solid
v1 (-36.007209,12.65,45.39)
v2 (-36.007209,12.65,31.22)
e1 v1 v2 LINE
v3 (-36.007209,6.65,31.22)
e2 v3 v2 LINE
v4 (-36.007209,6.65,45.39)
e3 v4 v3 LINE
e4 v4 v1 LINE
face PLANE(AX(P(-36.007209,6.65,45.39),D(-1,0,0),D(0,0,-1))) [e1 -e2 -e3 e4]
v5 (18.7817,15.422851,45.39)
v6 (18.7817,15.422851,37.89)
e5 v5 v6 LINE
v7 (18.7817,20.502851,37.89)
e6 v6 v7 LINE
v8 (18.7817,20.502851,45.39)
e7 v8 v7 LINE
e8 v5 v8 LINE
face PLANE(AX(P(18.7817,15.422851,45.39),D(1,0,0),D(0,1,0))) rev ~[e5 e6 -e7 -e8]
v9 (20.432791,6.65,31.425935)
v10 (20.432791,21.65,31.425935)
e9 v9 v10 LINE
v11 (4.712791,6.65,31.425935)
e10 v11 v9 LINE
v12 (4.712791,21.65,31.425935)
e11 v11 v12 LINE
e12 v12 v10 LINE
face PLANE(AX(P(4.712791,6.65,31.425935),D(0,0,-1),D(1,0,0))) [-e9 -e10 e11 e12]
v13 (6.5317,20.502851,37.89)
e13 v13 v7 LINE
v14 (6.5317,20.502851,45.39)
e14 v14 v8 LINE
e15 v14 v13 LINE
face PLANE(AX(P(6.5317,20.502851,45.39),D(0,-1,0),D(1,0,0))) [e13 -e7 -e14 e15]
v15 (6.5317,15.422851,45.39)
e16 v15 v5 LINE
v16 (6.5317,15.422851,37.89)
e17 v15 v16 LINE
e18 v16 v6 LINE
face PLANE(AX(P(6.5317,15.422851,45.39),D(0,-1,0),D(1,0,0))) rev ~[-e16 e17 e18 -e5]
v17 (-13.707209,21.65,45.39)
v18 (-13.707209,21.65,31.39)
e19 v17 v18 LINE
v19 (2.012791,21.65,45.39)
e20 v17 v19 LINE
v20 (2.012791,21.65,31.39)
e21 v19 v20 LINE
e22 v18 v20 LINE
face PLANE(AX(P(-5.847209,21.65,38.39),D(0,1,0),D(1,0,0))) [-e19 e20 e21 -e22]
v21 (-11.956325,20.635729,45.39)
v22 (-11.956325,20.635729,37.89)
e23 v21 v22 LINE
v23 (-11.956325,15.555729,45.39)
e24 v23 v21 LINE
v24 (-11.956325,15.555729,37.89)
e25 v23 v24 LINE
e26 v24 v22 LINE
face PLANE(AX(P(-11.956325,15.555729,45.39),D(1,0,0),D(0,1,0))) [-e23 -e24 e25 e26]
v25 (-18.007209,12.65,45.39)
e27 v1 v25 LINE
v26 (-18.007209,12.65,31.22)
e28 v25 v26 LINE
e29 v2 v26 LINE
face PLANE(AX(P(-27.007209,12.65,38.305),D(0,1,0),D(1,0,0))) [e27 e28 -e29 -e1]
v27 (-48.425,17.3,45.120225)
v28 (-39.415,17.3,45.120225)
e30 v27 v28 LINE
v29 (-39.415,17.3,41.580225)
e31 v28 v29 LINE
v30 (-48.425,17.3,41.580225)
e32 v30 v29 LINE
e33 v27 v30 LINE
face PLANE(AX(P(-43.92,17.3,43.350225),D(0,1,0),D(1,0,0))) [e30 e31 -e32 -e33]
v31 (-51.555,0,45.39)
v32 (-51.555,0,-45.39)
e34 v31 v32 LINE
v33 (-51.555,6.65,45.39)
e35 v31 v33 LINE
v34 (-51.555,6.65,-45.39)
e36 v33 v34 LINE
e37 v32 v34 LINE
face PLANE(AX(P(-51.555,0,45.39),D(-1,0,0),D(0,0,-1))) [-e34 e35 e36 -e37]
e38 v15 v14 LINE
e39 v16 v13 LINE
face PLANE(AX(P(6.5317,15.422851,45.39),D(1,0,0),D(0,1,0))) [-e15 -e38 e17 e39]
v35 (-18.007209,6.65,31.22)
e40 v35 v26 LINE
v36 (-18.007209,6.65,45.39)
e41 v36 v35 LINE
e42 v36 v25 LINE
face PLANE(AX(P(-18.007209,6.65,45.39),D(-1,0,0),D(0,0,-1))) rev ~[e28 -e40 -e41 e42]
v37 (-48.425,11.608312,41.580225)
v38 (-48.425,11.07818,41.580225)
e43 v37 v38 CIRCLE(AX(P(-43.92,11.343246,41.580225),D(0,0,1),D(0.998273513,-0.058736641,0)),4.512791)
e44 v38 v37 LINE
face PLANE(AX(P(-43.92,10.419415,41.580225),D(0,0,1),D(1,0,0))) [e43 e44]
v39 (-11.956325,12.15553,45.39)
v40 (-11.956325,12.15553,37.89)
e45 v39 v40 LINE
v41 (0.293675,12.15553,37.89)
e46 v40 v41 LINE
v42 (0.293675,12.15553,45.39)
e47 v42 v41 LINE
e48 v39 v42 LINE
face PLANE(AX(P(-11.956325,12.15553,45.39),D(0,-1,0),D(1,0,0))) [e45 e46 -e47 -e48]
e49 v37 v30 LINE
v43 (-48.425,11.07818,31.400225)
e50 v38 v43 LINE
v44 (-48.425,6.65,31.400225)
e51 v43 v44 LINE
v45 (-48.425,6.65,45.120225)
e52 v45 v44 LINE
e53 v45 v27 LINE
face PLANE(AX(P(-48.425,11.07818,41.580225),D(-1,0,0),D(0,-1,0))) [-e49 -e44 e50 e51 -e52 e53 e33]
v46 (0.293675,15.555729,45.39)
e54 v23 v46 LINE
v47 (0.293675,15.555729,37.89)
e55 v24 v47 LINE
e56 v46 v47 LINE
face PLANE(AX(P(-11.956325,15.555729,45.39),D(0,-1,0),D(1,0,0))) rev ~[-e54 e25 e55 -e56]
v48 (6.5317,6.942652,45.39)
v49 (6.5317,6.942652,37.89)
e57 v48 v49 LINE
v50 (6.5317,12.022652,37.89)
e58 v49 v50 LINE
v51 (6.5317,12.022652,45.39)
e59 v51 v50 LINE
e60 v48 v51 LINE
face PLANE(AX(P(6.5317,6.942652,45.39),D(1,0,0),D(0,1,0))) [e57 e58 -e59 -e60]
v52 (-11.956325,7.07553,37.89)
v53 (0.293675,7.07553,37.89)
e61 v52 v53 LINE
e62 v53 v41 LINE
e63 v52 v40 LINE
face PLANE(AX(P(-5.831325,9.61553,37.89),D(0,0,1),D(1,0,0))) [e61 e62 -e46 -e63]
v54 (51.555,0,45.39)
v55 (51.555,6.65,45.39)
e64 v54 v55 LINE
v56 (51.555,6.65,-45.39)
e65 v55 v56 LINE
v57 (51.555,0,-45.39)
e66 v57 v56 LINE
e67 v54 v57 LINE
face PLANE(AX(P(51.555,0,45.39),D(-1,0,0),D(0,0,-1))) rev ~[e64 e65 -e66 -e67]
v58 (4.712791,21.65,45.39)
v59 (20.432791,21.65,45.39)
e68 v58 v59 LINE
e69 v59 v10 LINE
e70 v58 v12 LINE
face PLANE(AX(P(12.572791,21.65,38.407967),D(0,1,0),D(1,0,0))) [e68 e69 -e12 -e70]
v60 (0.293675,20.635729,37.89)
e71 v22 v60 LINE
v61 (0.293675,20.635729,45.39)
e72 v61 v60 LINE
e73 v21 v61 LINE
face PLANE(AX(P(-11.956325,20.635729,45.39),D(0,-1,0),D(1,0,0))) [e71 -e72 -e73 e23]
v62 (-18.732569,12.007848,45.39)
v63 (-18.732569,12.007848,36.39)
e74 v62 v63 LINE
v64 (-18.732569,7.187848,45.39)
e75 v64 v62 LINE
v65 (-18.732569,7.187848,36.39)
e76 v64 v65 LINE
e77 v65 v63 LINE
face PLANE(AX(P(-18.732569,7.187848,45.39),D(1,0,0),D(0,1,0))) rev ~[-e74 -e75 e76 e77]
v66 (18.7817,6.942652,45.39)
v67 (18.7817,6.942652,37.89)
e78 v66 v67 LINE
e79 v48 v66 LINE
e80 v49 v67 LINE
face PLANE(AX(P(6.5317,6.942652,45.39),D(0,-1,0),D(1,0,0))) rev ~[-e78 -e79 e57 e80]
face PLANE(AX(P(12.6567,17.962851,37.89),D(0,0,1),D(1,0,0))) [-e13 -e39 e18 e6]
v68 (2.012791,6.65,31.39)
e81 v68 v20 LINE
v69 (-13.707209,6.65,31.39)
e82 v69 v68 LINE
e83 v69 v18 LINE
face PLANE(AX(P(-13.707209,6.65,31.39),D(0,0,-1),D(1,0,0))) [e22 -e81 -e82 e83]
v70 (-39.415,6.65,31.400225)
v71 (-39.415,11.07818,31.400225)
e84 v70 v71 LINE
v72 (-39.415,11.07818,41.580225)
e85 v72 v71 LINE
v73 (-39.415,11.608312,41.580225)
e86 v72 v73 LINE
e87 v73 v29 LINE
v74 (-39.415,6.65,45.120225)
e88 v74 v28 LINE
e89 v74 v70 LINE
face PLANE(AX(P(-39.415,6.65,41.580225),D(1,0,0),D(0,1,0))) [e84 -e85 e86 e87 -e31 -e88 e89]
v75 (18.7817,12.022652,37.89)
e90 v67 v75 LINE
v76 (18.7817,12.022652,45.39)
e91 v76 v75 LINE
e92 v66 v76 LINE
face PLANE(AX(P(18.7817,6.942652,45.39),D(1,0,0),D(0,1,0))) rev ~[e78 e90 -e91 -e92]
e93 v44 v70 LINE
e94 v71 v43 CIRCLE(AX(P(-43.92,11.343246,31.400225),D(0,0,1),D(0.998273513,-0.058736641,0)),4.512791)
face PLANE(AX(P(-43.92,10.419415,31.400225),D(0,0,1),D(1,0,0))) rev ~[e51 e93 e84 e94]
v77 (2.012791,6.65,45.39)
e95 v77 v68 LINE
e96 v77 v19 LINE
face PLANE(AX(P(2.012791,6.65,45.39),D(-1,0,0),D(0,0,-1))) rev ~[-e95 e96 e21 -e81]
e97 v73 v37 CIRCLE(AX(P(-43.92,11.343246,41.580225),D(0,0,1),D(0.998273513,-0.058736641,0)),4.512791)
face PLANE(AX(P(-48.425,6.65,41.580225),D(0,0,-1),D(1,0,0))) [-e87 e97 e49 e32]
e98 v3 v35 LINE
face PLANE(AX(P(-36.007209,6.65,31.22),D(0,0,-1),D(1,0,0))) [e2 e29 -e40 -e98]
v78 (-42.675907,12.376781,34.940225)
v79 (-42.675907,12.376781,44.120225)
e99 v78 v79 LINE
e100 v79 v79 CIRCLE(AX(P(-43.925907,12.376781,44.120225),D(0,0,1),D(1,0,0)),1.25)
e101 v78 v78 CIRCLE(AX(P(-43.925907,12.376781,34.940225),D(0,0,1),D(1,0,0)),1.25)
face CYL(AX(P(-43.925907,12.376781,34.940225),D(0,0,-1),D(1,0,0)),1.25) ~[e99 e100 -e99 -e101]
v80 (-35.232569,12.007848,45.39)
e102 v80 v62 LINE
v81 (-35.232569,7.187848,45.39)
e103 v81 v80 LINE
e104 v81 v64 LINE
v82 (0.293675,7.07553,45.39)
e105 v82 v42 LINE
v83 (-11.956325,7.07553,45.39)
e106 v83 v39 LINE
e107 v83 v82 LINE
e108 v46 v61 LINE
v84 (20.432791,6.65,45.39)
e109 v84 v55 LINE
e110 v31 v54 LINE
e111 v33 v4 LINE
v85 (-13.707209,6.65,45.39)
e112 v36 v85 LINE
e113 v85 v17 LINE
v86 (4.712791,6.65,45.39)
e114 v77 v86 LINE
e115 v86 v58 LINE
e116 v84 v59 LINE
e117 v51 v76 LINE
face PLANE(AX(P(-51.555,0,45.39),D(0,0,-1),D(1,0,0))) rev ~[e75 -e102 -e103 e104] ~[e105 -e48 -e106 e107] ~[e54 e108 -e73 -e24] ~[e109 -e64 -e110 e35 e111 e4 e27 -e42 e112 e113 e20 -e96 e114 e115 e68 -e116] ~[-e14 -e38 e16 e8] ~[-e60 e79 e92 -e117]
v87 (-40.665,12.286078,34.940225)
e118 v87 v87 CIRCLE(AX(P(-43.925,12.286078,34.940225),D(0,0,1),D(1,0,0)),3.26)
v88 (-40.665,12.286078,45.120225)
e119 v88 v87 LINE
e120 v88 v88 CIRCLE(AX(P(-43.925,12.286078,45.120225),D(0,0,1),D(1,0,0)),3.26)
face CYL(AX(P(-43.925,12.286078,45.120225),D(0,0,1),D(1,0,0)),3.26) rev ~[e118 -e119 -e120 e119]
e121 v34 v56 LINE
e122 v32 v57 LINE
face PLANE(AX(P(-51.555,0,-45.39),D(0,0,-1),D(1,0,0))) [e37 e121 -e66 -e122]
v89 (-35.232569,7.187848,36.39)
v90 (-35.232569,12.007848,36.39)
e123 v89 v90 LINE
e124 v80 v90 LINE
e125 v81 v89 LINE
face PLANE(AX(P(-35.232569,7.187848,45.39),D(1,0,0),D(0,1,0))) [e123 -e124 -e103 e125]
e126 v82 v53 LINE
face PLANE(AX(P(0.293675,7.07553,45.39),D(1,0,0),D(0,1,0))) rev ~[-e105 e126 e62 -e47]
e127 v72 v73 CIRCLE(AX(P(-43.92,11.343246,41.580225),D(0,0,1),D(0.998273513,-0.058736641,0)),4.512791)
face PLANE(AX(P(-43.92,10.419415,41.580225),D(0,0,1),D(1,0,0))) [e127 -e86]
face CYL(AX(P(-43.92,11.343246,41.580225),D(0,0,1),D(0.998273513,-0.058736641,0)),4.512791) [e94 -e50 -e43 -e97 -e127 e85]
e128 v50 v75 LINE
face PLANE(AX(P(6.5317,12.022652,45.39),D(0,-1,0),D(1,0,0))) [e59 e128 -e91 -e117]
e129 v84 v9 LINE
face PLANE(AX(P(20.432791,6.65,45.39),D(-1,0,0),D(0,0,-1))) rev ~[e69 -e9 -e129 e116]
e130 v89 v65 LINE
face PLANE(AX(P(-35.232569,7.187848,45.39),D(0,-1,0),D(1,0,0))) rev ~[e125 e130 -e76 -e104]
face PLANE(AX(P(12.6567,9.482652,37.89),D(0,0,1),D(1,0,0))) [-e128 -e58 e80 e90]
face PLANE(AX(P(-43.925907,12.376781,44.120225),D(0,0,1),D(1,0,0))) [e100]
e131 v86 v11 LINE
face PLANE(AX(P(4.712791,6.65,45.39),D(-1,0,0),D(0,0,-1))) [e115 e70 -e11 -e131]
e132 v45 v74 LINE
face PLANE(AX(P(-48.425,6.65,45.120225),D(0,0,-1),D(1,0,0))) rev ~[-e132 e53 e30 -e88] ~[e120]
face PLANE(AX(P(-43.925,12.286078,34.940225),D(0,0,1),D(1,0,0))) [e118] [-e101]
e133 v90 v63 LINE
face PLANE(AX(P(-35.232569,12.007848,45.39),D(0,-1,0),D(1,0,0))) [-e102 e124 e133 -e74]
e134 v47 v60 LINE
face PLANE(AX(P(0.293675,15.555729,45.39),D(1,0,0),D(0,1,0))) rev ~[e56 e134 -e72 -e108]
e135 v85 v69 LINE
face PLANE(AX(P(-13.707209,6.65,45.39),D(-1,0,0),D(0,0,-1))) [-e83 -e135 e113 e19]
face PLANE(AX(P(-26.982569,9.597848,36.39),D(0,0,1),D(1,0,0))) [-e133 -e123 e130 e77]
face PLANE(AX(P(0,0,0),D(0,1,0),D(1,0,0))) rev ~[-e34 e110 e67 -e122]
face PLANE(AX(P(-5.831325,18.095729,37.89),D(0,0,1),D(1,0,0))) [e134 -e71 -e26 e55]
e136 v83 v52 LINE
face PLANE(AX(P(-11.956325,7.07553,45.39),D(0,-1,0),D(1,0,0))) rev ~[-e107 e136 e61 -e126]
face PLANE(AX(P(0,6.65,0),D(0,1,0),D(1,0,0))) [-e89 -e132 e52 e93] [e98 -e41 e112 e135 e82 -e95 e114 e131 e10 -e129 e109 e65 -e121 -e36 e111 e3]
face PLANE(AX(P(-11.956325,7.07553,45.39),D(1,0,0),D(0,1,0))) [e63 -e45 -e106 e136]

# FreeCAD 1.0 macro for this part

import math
import FreeCAD as App
import Part
import Sketcher
from FreeCAD import Vector
Q = App.Units.Quantity


def add_polygon(sketch, points):
    """Adds a closed chain of lines whose ends are joined by coincident constraints."""
    first, n = sketch.GeometryCount, len(points)
    for a, b in zip(points, points[1:] + points[:1]):
        sketch.addGeometry(Part.LineSegment(App.Vector(*a, 0), App.Vector(*b, 0)), False)
    for i in range(n):
        sketch.addConstraint(Sketcher.Constraint("Coincident", first + i, 2, first + (i + 1) % n, 1))

doc = App.newDocument("Part")
body = doc.addObject("PartDesign::Body", "Body")

# Sketch on XZ plane
sketch1 = doc.addObject("Sketcher::SketchObject", "Sketch")
body.addObject(sketch1)
sketch1.AttachmentSupport = (doc.XZ_Plane, [""])
sketch1.MapMode = "FlatFace"
add_polygon(sketch1, [(-52, -45), (-52, 45), (52, 45), (52, -45)])  # lines 0-3
sketch1.addConstraint([
    Sketcher.Constraint("Vertical", 0),
    Sketcher.Constraint("Horizontal", 1),
    Sketcher.Constraint("Vertical", 2),
    Sketcher.Constraint("Horizontal", 3),
    Sketcher.Constraint("Symmetric", 0, 2, 2, 2, -1, 1),
    Sketcher.Constraint("DistanceX", 1, 1, 1, 2, Q("103.11 mm")),
    Sketcher.Constraint("DistanceY", 0, 1, 0, 2, Q("90.78 mm")),
])
pad1 = doc.addObject("PartDesign::Pad", "Pad")
body.addObject(pad1)
pad1.Profile = sketch1
pad1.Length = 6.65
pad1.Reversed = True

# Sketch on XZ plane
sketch2 = doc.addObject("Sketcher::SketchObject", "Sketch001")
body.addObject(sketch2)
sketch2.AttachmentSupport = (doc.XZ_Plane, [""])
sketch2.MapMode = "FlatFace"
sketch2.AttachmentOffset = App.Placement(Vector(0, 0, -6.65), App.Rotation())
add_polygon(sketch2, [(-48.4, 41.6), (-48.4, 45.1), (-39.4, 45.1), (-39.4, 41.6)])  # lines 0-3
sketch2.addConstraint([
    Sketcher.Constraint("Vertical", 0),
    Sketcher.Constraint("Horizontal", 1),
    Sketcher.Constraint("Vertical", 2),
    Sketcher.Constraint("Horizontal", 3),
    Sketcher.Constraint("DistanceX", 1, 1, 1, 2, Q("9.01 mm")),
    Sketcher.Constraint("DistanceY", 0, 1, 0, 2, Q("3.54 mm")),
    Sketcher.Constraint("DistanceX", 0, 2, -1, 1, Q("48.425 mm")),
    Sketcher.Constraint("DistanceY", -1, 1, 0, 2, Q("45.120225 mm")),
])
pad2 = doc.addObject("PartDesign::Pad", "Pad001")
body.addObject(pad2)
pad2.Profile = sketch2
pad2.Length = 10.65
pad2.Reversed = True

# Sketch on XY plane
sketch3 = doc.addObject("Sketcher::SketchObject", "Sketch002")
body.addObject(sketch3)
sketch3.AttachmentSupport = (doc.XY_Plane, [""])
sketch3.MapMode = "FlatFace"
sketch3.AttachmentOffset = App.Placement(Vector(0, 0, 41.580225), App.Rotation())
sketch3.addGeometry([
    Part.LineSegment(Vector(-39.4, 11.1, 0), Vector(-39.4, 6.7, 0)),
    Part.LineSegment(Vector(-39.4, 6.7, 0), Vector(-48.4, 6.7, 0)),
    Part.LineSegment(Vector(-48.4, 6.7, 0), Vector(-48.4, 11.1, 0)),
    Part.ArcOfCircle(Part.Circle(Vector(-43.9, 11.3, 0), Vector(0, 0, 1), 4.5), math.radians(-3), math.radians(183)),
], False)
sketch3.addConstraint([
    Sketcher.Constraint("Coincident", 0, 2, 1, 1),
    Sketcher.Constraint("Coincident", 1, 2, 2, 1),
    Sketcher.Constraint("Coincident", 2, 2, 3, 2),
    Sketcher.Constraint("Coincident", 3, 1, 0, 1),
    Sketcher.Constraint("Vertical", 0),
    Sketcher.Constraint("Horizontal", 1),
    Sketcher.Constraint("Vertical", 2),
    Sketcher.Constraint("Horizontal", 2, 2, 3, 1),
    Sketcher.Constraint("DistanceX", 1, 2, 1, 1, Q("9.01 mm")),
    Sketcher.Constraint("DistanceX", 3, 3, -1, 1, Q("43.92 mm")),
    Sketcher.Constraint("DistanceY", -1, 1, 0, 2, Q("6.65 mm")),
    Sketcher.Constraint("Radius", 3, Q("4.512791 mm")),
    Sketcher.Constraint("DistanceY", 0, 2, 0, 1, Q("4.42818 mm")),
])
pad3 = doc.addObject("PartDesign::Pad", "Pad002")
body.addObject(pad3)
pad3.Profile = sketch3
pad3.Length = 10.18
pad3.Reversed = True

# Sketch on XY plane
sketch4 = doc.addObject("Sketcher::SketchObject", "Sketch003")
body.addObject(sketch4)
sketch4.AttachmentSupport = (doc.XY_Plane, [""])
sketch4.MapMode = "FlatFace"
sketch4.AttachmentOffset = App.Placement(Vector(0, 0, 45.120225), App.Rotation())
sketch4.addGeometry(Part.Circle(Vector(-43.9, 12.3, 0), Vector(0, 0, 1), 3.3), False)
sketch4.addConstraint([
    Sketcher.Constraint("Diameter", 0, Q("6.52 mm")),
    Sketcher.Constraint("DistanceX", 0, 3, -1, 1, Q("43.925 mm")),
    Sketcher.Constraint("DistanceY", -1, 1, 0, 3, Q("12.286078 mm")),
])
pocket1 = doc.addObject("PartDesign::Pocket", "Pocket")
body.addObject(pocket1)
pocket1.Profile = sketch4
pocket1.Length = 10.18

# Sketch on XY plane
sketch5 = doc.addObject("Sketcher::SketchObject", "Sketch004")
body.addObject(sketch5)
sketch5.AttachmentSupport = (doc.XY_Plane, [""])
sketch5.MapMode = "FlatFace"
sketch5.AttachmentOffset = App.Placement(Vector(0, 0, 34.940225), App.Rotation())
sketch5.addGeometry(Part.Circle(Vector(-43.9, 12.4, 0), Vector(0, 0, 1), 1.2), False)
sketch5.addConstraint([
    Sketcher.Constraint("Diameter", 0, Q("2.5 mm")),
    Sketcher.Constraint("DistanceY", -1, 1, 0, 3, Q("12.376781 mm")),
    Sketcher.Constraint("DistanceX", 0, 3, -1, 1, Q("43.925907 mm")),
])
pad4 = doc.addObject("PartDesign::Pad", "Pad003")
body.addObject(pad4)
pad4.Profile = sketch5
pad4.Length = 9.18

# Sketch on XZ plane
sketch6 = doc.addObject("Sketcher::SketchObject", "Sketch005")
body.addObject(sketch6)
sketch6.AttachmentSupport = (doc.XZ_Plane, [""])
sketch6.MapMode = "FlatFace"
sketch6.AttachmentOffset = App.Placement(Vector(0, 0, -6.65), App.Rotation())
add_polygon(sketch6, [(-36, 31), (-36, 45), (-18, 45), (-18, 31)])  # lines 0-3
sketch6.addConstraint([
    Sketcher.Constraint("Vertical", 0),
    Sketcher.Constraint("Horizontal", 1),
    Sketcher.Constraint("Vertical", 2),
    Sketcher.Constraint("Horizontal", 3),
    Sketcher.Constraint("DistanceX", 1, 1, 1, 2, Q("18 mm")),
    Sketcher.Constraint("DistanceY", 0, 1, 0, 2, Q("14.17 mm")),
    Sketcher.Constraint("DistanceY", -1, 1, 0, 2, Q("45.39 mm")),
    Sketcher.Constraint("DistanceX", 0, 2, -1, 1, Q("36.007209 mm")),
])
pad5 = doc.addObject("PartDesign::Pad", "Pad004")
body.addObject(pad5)
pad5.Profile = sketch6
pad5.Length = 6
pad5.Reversed = True

# Sketch on XY plane
sketch7 = doc.addObject("Sketcher::SketchObject", "Sketch006")
body.addObject(sketch7)
sketch7.AttachmentSupport = (doc.XY_Plane, [""])
sketch7.MapMode = "FlatFace"
sketch7.AttachmentOffset = App.Placement(Vector(0, 0, 45.39), App.Rotation())
add_polygon(sketch7, [(-35.2, 12), (-35.2, 7.2), (-18.7, 7.2), (-18.7, 12)])  # lines 0-3
sketch7.addConstraint([
    Sketcher.Constraint("Vertical", 0),
    Sketcher.Constraint("Horizontal", 1),
    Sketcher.Constraint("Vertical", 2),
    Sketcher.Constraint("Horizontal", 3),
    Sketcher.Constraint("DistanceX", 1, 1, 1, 2, Q("16.5 mm")),
    Sketcher.Constraint("DistanceY", 0, 2, 0, 1, Q("4.82 mm")),
    Sketcher.Constraint("DistanceX", 0, 2, -1, 1, Q("35.232569 mm")),
    Sketcher.Constraint("DistanceY", -1, 1, 0, 2, Q("7.187848 mm")),
])
pocket2 = doc.addObject("PartDesign::Pocket", "Pocket001")
body.addObject(pocket2)
pocket2.Profile = sketch7
pocket2.Length = 9

# Sketch on XZ plane
sketch8 = doc.addObject("Sketcher::SketchObject", "Sketch007")
body.addObject(sketch8)
sketch8.AttachmentSupport = (doc.XZ_Plane, [""])
sketch8.MapMode = "FlatFace"
sketch8.AttachmentOffset = App.Placement(Vector(0, 0, -6.65), App.Rotation())
add_polygon(sketch8, [(-14, 31), (-14, 45), (2, 45), (2, 31)])  # lines 0-3
sketch8.addConstraint([
    Sketcher.Constraint("Vertical", 0),
    Sketcher.Constraint("Horizontal", 1),
    Sketcher.Constraint("Vertical", 2),
    Sketcher.Constraint("Horizontal", 3),
    Sketcher.Constraint("DistanceY", 0, 1, 0, 2, Q("14 mm")),
    Sketcher.Constraint("DistanceX", 1, 1, 1, 2, Q("15.72 mm")),
    Sketcher.Constraint("DistanceY", -1, 1, 0, 2, Q("45.39 mm")),
    Sketcher.Constraint("DistanceX", 0, 2, -1, 1, Q("13.707209 mm")),
])
pad6 = doc.addObject("PartDesign::Pad", "Pad005")
body.addObject(pad6)
pad6.Profile = sketch8
pad6.Length = 15
pad6.Reversed = True

# Sketch on XY plane
sketch9 = doc.addObject("Sketcher::SketchObject", "Sketch008")
body.addObject(sketch9)
sketch9.AttachmentSupport = (doc.XY_Plane, [""])
sketch9.MapMode = "FlatFace"
sketch9.AttachmentOffset = App.Placement(Vector(0, 0, 45.39), App.Rotation())
add_polygon(sketch9, [(-12, 21), (-12, 16), (0, 16), (0, 21)])  # lines 0-3
add_polygon(sketch9, [(-12, 12), (-12, 7), (0, 7), (0, 12)])  # lines 4-7
sketch9.addConstraint([
    Sketcher.Constraint("Vertical", 0),
    Sketcher.Constraint("Horizontal", 1),
    Sketcher.Constraint("Vertical", 2),
    Sketcher.Constraint("Horizontal", 3),
    Sketcher.Constraint("Vertical", 4),
    Sketcher.Constraint("Horizontal", 5),
    Sketcher.Constraint("Vertical", 6),
    Sketcher.Constraint("Horizontal", 7),
    Sketcher.Constraint("Vertical", 3, 2, 4, 2),
    Sketcher.Constraint("Vertical", 2, 2, 5, 2),
    Sketcher.Constraint("Equal", 2, 4),
    Sketcher.Constraint("DistanceX", 1, 1, 1, 2, Q("12.25 mm")),
    Sketcher.Constraint("DistanceY", 0, 2, 0, 1, Q("5.08 mm")),
    Sketcher.Constraint("DistanceY", 4, 2, 0, 2, Q("8.480198 mm")),
    Sketcher.Constraint("DistanceY", -1, 1, 0, 2, Q("15.555729 mm")),
    Sketcher.Constraint("DistanceX", 0, 2, -1, 1, Q("11.956325 mm")),
])
pocket3 = doc.addObject("PartDesign::Pocket", "Pocket002")
body.addObject(pocket3)
pocket3.Profile = sketch9
pocket3.Length = 7.5

# Sketch on XZ plane
sketch10 = doc.addObject("Sketcher::SketchObject", "Sketch009")
body.addObject(sketch10)
sketch10.AttachmentSupport = (doc.XZ_Plane, [""])
sketch10.MapMode = "FlatFace"
sketch10.AttachmentOffset = App.Placement(Vector(0, 0, -6.65), App.Rotation())
add_polygon(sketch10, [(5, 31), (5, 45), (20, 45), (20, 31)])  # lines 0-3
sketch10.addConstraint([
    Sketcher.Constraint("Vertical", 0),
    Sketcher.Constraint("Horizontal", 1),
    Sketcher.Constraint("Vertical", 2),
    Sketcher.Constraint("Horizontal", 3),
    Sketcher.Constraint("DistanceX", 1, 1, 1, 2, Q("15.72 mm")),
    Sketcher.Constraint("DistanceY", -1, 1, 0, 2, Q("45.39 mm")),
    Sketcher.Constraint("DistanceY", 0, 1, 0, 2, Q("13.964065 mm")),
    Sketcher.Constraint("DistanceX", -1, 1, 0, 2, Q("4.712791 mm")),
])
pad7 = doc.addObject("PartDesign::Pad", "Pad006")
body.addObject(pad7)
pad7.Profile = sketch10
pad7.Length = 15
pad7.Reversed = True

# Sketch on XY plane
sketch11 = doc.addObject("Sketcher::SketchObject", "Sketch010")
body.addObject(sketch11)
sketch11.AttachmentSupport = (doc.XY_Plane, [""])
sketch11.MapMode = "FlatFace"
sketch11.AttachmentOffset = App.Placement(Vector(0, 0, 45.39), App.Rotation())
add_polygon(sketch11, [(7, 21), (7, 15), (19, 15), (19, 21)])  # lines 0-3
add_polygon(sketch11, [(7, 12), (7, 7), (19, 7), (19, 12)])  # lines 4-7
sketch11.addConstraint([
    Sketcher.Constraint("Vertical", 0),
    Sketcher.Constraint("Horizontal", 1),
    Sketcher.Constraint("Vertical", 2),
    Sketcher.Constraint("Horizontal", 3),
    Sketcher.Constraint("Vertical", 4),
    Sketcher.Constraint("Horizontal", 5),
    Sketcher.Constraint("Vertical", 6),
    Sketcher.Constraint("Horizontal", 7),
    Sketcher.Constraint("Vertical", 3, 2, 4, 2),
    Sketcher.Constraint("Vertical", 2, 2, 5, 2),
    Sketcher.Constraint("Equal", 2, 4),
    Sketcher.Constraint("DistanceX", 1, 1, 1, 2, Q("12.25 mm")),
    Sketcher.Constraint("DistanceY", 0, 2, 0, 1, Q("5.08 mm")),
    Sketcher.Constraint("DistanceX", -1, 1, 0, 2, Q("6.5317 mm")),
    Sketcher.Constraint("DistanceY", 4, 2, 0, 2, Q("8.480198 mm")),
    Sketcher.Constraint("DistanceY", -1, 1, 0, 2, Q("15.422851 mm")),
])
pocket4 = doc.addObject("PartDesign::Pocket", "Pocket003")
body.addObject(pocket4)
pocket4.Profile = sketch11
pocket4.Length = 7.5

doc.recompute()
